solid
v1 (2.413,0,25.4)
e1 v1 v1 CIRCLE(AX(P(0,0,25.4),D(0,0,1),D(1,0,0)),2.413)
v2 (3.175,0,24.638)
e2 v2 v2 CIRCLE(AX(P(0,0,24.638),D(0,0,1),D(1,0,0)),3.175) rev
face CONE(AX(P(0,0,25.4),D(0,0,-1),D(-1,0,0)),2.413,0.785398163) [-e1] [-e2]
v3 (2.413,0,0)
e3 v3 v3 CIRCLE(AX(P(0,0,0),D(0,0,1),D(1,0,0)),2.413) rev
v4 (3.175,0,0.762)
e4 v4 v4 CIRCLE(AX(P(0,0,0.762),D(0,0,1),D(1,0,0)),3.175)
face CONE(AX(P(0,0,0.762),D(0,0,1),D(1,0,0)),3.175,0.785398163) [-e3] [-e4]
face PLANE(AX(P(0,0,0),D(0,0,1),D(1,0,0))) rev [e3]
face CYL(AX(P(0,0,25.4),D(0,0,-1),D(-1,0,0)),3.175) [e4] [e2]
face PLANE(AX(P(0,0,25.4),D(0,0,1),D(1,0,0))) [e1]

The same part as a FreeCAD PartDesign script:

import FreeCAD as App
import Part
import Sketcher
Q = App.Units.Quantity


def edges_at(feature, points):
    """Names of the edges that pass closest to the given points."""
    edges = feature.Shape.Edges
    near = lambda p: min(range(len(edges)), key=lambda i: edges[i].distToShape(Part.Vertex(*p))[0])
    return sorted({f"Edge{near(p) + 1}" for p in points})

doc = App.newDocument("Part")
params = doc.addObject("Spreadsheet::Sheet", "Params")
for row, (alias, value) in enumerate([
    ("sketch1_diameter", "0.25 in"),
    ("pad1_length", "1 in"),
    ("chamfer_size", "0.03 in"),
], start=1):
    params.set(f"A{row}", alias)
    params.set(f"B{row}", "=" + value)
    params.setAlias(f"B{row}", alias)

body = doc.addObject("PartDesign::Body", "Body")

# Sketch on XY plane
sketch1 = doc.addObject("Sketcher::SketchObject", "Sketch")
body.addObject(sketch1)
sketch1.AttachmentSupport = (doc.XY_Plane, [""])
sketch1.MapMode = "FlatFace"
sketch1.addGeometry(Part.Circle(App.Vector(0, 0, 0), App.Vector(0, 0, 1), 3.2), False)
sketch1.addConstraint([
    Sketcher.Constraint("Coincident", 0, 3, -1, 1),
    Sketcher.Constraint("Diameter", 0, Q("0.25 in")),
])
sketch1.setExpression("Constraints[1]", "Params.sketch1_diameter")
pad1 = doc.addObject("PartDesign::Pad", "Pad")
body.addObject(pad1)
pad1.Profile = sketch1
pad1.setExpression("Length", "Params.pad1_length")
doc.recompute()

chamfer = doc.addObject("PartDesign::Chamfer", "Chamfer")
body.addObject(chamfer)
chamfer.Base = (pad1, edges_at(pad1, [(-3.175, 0, 0), (-3.175, 0, 25.4)]))
chamfer.setExpression("Size", "Params.chamfer_size")

doc.recompute()
